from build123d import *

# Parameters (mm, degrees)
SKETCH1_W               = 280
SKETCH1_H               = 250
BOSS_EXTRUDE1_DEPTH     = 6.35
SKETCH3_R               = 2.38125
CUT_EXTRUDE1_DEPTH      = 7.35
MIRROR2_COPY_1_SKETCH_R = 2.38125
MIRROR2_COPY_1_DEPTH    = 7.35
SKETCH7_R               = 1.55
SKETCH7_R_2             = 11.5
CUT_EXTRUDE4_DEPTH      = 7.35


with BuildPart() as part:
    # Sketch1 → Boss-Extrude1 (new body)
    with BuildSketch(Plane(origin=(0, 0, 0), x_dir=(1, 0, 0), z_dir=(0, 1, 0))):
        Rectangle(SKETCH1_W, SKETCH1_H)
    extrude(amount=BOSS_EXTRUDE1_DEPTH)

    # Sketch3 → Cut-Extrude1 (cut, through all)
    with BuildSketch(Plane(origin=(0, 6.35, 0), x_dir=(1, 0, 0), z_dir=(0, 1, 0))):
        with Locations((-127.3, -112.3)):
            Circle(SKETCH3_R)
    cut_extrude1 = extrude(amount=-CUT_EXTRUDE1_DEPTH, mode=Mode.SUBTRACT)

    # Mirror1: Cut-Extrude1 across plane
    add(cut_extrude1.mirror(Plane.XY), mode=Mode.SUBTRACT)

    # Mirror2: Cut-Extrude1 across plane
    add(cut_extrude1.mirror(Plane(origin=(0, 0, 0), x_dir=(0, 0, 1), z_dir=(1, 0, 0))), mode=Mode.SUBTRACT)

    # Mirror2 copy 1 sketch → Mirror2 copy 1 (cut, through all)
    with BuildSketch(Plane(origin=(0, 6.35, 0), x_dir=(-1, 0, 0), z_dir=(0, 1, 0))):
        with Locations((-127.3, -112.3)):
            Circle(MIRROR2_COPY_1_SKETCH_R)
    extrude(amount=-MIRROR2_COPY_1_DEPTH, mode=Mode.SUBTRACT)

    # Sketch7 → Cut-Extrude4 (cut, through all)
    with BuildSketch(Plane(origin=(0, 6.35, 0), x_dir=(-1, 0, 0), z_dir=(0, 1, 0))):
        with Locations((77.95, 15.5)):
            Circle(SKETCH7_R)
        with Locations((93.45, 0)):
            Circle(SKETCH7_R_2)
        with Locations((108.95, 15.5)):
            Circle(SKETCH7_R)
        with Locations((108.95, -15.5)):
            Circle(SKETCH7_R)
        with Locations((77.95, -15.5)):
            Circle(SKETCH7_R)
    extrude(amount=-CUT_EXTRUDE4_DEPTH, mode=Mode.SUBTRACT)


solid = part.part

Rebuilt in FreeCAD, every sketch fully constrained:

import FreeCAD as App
import Part
import Sketcher


def add_polygon(sketch, points):
    """Adds a closed chain of lines whose ends are joined by coincident constraints."""
    first, n = sketch.GeometryCount, len(points)
    for a, b in zip(points, points[1:] + points[:1]):
        sketch.addGeometry(Part.LineSegment(App.Vector(*a, 0), App.Vector(*b, 0)), False)
    for i in range(n):
        sketch.addConstraint(Sketcher.Constraint("Coincident", first + i, 2, first + (i + 1) % n, 1))

doc = App.newDocument("Part")
body = doc.addObject("PartDesign::Body", "Body")

sketch1 = doc.addObject("Sketcher::SketchObject", "Sketch")
body.addObject(sketch1)
sketch1.AttachmentSupport = (doc.XZ_Plane, [""])
sketch1.MapMode = "FlatFace"
add_polygon(sketch1, [(-140, -125), (-140, 125), (140, 125), (140, -125)])
sketch1.addConstraint(Sketcher.Constraint("Vertical", 0))
sketch1.addConstraint(Sketcher.Constraint("Horizontal", 1))
sketch1.addConstraint(Sketcher.Constraint("Vertical", 2))
sketch1.addConstraint(Sketcher.Constraint("Horizontal", 3))
sketch1.addConstraint(Sketcher.Constraint("Symmetric", 0, 2, 2, 2, -1, 1))
sketch1.addConstraint(Sketcher.Constraint("DistanceX", 1, 1, 1, 2, 280.0))
sketch1.addConstraint(Sketcher.Constraint("DistanceY", 0, 1, 0, 2, 250.0))
pad1 = doc.addObject("PartDesign::Pad", "Pad")
body.addObject(pad1)
pad1.Profile = sketch1
pad1.Length = 6.35
pad1.Reversed = True

sketch2 = doc.addObject("Sketcher::SketchObject", "Sketch001")
body.addObject(sketch2)
sketch2.AttachmentSupport = (doc.XZ_Plane, [""])
sketch2.MapMode = "FlatFace"
sketch2.AttachmentOffset = App.Placement(App.Vector(0, 0, -6.35), App.Rotation())
sketch2.addGeometry(Part.Circle(App.Vector(-127.3, 112.3, 0), App.Vector(0, 0, 1), 2.4), False)
sketch2.addConstraint(Sketcher.Constraint("Diameter", 0, 4.7625))
sketch2.addConstraint(Sketcher.Constraint("DistanceX", 0, 3, -1, 1, 127.3))
sketch2.addConstraint(Sketcher.Constraint("DistanceY", -1, 1, 0, 3, 112.3))
pocket1 = doc.addObject("PartDesign::Pocket", "Pocket")
body.addObject(pocket1)
pocket1.Profile = sketch2
pocket1.Type = "ThroughAll"
pocket1.Reversed = True
doc.recompute()

mirrored = doc.addObject("PartDesign::Mirrored", "Mirrored")
body.addObject(mirrored)
mirrored.Originals = [pocket1]
mirrored.MirrorPlane = (doc.XY_Plane, [""])
body.Tip = mirrored
doc.recompute()

mirrored2 = doc.addObject("PartDesign::Mirrored", "Mirrored001")
body.addObject(mirrored2)
mirrored2.Originals = [pocket1]
mirrored2.MirrorPlane = (doc.YZ_Plane, [""])
body.Tip = mirrored2

sketch3 = doc.addObject("Sketcher::SketchObject", "Sketch002")
body.addObject(sketch3)
sketch3.AttachmentSupport = (doc.XZ_Plane, [""])
sketch3.MapMode = "FlatFace"
sketch3.AttachmentOffset = App.Placement(App.Vector(0, 0, -6.35), App.Rotation())
sketch3.addGeometry(Part.Circle(App.Vector(127.3, -112.3, 0), App.Vector(0, 0, 1), 2.4), False)
sketch3.addConstraint(Sketcher.Constraint("Diameter", 0, 4.7625))
sketch3.addConstraint(Sketcher.Constraint("DistanceX", -1, 1, 0, 3, 127.3))
sketch3.addConstraint(Sketcher.Constraint("DistanceY", 0, 3, -1, 1, 112.3))
pocket2 = doc.addObject("PartDesign::Pocket", "Pocket001")
body.addObject(pocket2)
pocket2.Profile = sketch3
pocket2.Type = "ThroughAll"
pocket2.Reversed = True

sketch4 = doc.addObject("Sketcher::SketchObject", "Sketch003")
body.addObject(sketch4)
sketch4.AttachmentSupport = (doc.XZ_Plane, [""])
sketch4.MapMode = "FlatFace"
sketch4.AttachmentOffset = App.Placement(App.Vector(0, 0, -6.35), App.Rotation())
sketch4.addGeometry(Part.Circle(App.Vector(-78, 15.5, 0), App.Vector(0, 0, 1), 1.6), False)
sketch4.addGeometry(Part.Circle(App.Vector(-93.5, 0, 0), App.Vector(0, 0, 1), 11.5), False)
sketch4.addGeometry(Part.Circle(App.Vector(-109, 15.5, 0), App.Vector(0, 0, 1), 1.6), False)
sketch4.addGeometry(Part.Circle(App.Vector(-109, -15.5, 0), App.Vector(0, 0, 1), 1.6), False)
sketch4.addGeometry(Part.Circle(App.Vector(-78, -15.5, 0), App.Vector(0, 0, 1), 1.6), False)
sketch4.addConstraint(Sketcher.Constraint("Equal", 0, 2))
sketch4.addConstraint(Sketcher.Constraint("Equal", 2, 3))
sketch4.addConstraint(Sketcher.Constraint("Equal", 3, 4))
sketch4.addConstraint(Sketcher.Constraint("Symmetric", 2, 3, 3, 3, -1))
sketch4.addConstraint(Sketcher.Constraint("Symmetric", 0, 3, 4, 3, -1))
sketch4.addConstraint(Sketcher.Constraint("PointOnObject", 1, 3, -1))
sketch4.addConstraint(Sketcher.Constraint("Horizontal", 0, 3, 2, 3))
sketch4.addConstraint(Sketcher.Constraint("Diameter", 1, 23.0))
sketch4.addConstraint(Sketcher.Constraint("Diameter", 0, 3.1))
sketch4.addConstraint(Sketcher.Constraint("DistanceX", 2, 3, 0, 3, 31.0))
sketch4.addConstraint(Sketcher.Constraint("DistanceY", 3, 3, 2, 3, 31.0))
sketch4.addConstraint(Sketcher.Constraint("DistanceX", 1, 3, 0, 3, 15.5))
sketch4.addConstraint(Sketcher.Constraint("DistanceX", 0, 3, -1, 1, 77.95))
pocket3 = doc.addObject("PartDesign::Pocket", "Pocket002")
body.addObject(pocket3)
pocket3.Profile = sketch4
pocket3.Type = "ThroughAll"
pocket3.Reversed = True

doc.recompute()
